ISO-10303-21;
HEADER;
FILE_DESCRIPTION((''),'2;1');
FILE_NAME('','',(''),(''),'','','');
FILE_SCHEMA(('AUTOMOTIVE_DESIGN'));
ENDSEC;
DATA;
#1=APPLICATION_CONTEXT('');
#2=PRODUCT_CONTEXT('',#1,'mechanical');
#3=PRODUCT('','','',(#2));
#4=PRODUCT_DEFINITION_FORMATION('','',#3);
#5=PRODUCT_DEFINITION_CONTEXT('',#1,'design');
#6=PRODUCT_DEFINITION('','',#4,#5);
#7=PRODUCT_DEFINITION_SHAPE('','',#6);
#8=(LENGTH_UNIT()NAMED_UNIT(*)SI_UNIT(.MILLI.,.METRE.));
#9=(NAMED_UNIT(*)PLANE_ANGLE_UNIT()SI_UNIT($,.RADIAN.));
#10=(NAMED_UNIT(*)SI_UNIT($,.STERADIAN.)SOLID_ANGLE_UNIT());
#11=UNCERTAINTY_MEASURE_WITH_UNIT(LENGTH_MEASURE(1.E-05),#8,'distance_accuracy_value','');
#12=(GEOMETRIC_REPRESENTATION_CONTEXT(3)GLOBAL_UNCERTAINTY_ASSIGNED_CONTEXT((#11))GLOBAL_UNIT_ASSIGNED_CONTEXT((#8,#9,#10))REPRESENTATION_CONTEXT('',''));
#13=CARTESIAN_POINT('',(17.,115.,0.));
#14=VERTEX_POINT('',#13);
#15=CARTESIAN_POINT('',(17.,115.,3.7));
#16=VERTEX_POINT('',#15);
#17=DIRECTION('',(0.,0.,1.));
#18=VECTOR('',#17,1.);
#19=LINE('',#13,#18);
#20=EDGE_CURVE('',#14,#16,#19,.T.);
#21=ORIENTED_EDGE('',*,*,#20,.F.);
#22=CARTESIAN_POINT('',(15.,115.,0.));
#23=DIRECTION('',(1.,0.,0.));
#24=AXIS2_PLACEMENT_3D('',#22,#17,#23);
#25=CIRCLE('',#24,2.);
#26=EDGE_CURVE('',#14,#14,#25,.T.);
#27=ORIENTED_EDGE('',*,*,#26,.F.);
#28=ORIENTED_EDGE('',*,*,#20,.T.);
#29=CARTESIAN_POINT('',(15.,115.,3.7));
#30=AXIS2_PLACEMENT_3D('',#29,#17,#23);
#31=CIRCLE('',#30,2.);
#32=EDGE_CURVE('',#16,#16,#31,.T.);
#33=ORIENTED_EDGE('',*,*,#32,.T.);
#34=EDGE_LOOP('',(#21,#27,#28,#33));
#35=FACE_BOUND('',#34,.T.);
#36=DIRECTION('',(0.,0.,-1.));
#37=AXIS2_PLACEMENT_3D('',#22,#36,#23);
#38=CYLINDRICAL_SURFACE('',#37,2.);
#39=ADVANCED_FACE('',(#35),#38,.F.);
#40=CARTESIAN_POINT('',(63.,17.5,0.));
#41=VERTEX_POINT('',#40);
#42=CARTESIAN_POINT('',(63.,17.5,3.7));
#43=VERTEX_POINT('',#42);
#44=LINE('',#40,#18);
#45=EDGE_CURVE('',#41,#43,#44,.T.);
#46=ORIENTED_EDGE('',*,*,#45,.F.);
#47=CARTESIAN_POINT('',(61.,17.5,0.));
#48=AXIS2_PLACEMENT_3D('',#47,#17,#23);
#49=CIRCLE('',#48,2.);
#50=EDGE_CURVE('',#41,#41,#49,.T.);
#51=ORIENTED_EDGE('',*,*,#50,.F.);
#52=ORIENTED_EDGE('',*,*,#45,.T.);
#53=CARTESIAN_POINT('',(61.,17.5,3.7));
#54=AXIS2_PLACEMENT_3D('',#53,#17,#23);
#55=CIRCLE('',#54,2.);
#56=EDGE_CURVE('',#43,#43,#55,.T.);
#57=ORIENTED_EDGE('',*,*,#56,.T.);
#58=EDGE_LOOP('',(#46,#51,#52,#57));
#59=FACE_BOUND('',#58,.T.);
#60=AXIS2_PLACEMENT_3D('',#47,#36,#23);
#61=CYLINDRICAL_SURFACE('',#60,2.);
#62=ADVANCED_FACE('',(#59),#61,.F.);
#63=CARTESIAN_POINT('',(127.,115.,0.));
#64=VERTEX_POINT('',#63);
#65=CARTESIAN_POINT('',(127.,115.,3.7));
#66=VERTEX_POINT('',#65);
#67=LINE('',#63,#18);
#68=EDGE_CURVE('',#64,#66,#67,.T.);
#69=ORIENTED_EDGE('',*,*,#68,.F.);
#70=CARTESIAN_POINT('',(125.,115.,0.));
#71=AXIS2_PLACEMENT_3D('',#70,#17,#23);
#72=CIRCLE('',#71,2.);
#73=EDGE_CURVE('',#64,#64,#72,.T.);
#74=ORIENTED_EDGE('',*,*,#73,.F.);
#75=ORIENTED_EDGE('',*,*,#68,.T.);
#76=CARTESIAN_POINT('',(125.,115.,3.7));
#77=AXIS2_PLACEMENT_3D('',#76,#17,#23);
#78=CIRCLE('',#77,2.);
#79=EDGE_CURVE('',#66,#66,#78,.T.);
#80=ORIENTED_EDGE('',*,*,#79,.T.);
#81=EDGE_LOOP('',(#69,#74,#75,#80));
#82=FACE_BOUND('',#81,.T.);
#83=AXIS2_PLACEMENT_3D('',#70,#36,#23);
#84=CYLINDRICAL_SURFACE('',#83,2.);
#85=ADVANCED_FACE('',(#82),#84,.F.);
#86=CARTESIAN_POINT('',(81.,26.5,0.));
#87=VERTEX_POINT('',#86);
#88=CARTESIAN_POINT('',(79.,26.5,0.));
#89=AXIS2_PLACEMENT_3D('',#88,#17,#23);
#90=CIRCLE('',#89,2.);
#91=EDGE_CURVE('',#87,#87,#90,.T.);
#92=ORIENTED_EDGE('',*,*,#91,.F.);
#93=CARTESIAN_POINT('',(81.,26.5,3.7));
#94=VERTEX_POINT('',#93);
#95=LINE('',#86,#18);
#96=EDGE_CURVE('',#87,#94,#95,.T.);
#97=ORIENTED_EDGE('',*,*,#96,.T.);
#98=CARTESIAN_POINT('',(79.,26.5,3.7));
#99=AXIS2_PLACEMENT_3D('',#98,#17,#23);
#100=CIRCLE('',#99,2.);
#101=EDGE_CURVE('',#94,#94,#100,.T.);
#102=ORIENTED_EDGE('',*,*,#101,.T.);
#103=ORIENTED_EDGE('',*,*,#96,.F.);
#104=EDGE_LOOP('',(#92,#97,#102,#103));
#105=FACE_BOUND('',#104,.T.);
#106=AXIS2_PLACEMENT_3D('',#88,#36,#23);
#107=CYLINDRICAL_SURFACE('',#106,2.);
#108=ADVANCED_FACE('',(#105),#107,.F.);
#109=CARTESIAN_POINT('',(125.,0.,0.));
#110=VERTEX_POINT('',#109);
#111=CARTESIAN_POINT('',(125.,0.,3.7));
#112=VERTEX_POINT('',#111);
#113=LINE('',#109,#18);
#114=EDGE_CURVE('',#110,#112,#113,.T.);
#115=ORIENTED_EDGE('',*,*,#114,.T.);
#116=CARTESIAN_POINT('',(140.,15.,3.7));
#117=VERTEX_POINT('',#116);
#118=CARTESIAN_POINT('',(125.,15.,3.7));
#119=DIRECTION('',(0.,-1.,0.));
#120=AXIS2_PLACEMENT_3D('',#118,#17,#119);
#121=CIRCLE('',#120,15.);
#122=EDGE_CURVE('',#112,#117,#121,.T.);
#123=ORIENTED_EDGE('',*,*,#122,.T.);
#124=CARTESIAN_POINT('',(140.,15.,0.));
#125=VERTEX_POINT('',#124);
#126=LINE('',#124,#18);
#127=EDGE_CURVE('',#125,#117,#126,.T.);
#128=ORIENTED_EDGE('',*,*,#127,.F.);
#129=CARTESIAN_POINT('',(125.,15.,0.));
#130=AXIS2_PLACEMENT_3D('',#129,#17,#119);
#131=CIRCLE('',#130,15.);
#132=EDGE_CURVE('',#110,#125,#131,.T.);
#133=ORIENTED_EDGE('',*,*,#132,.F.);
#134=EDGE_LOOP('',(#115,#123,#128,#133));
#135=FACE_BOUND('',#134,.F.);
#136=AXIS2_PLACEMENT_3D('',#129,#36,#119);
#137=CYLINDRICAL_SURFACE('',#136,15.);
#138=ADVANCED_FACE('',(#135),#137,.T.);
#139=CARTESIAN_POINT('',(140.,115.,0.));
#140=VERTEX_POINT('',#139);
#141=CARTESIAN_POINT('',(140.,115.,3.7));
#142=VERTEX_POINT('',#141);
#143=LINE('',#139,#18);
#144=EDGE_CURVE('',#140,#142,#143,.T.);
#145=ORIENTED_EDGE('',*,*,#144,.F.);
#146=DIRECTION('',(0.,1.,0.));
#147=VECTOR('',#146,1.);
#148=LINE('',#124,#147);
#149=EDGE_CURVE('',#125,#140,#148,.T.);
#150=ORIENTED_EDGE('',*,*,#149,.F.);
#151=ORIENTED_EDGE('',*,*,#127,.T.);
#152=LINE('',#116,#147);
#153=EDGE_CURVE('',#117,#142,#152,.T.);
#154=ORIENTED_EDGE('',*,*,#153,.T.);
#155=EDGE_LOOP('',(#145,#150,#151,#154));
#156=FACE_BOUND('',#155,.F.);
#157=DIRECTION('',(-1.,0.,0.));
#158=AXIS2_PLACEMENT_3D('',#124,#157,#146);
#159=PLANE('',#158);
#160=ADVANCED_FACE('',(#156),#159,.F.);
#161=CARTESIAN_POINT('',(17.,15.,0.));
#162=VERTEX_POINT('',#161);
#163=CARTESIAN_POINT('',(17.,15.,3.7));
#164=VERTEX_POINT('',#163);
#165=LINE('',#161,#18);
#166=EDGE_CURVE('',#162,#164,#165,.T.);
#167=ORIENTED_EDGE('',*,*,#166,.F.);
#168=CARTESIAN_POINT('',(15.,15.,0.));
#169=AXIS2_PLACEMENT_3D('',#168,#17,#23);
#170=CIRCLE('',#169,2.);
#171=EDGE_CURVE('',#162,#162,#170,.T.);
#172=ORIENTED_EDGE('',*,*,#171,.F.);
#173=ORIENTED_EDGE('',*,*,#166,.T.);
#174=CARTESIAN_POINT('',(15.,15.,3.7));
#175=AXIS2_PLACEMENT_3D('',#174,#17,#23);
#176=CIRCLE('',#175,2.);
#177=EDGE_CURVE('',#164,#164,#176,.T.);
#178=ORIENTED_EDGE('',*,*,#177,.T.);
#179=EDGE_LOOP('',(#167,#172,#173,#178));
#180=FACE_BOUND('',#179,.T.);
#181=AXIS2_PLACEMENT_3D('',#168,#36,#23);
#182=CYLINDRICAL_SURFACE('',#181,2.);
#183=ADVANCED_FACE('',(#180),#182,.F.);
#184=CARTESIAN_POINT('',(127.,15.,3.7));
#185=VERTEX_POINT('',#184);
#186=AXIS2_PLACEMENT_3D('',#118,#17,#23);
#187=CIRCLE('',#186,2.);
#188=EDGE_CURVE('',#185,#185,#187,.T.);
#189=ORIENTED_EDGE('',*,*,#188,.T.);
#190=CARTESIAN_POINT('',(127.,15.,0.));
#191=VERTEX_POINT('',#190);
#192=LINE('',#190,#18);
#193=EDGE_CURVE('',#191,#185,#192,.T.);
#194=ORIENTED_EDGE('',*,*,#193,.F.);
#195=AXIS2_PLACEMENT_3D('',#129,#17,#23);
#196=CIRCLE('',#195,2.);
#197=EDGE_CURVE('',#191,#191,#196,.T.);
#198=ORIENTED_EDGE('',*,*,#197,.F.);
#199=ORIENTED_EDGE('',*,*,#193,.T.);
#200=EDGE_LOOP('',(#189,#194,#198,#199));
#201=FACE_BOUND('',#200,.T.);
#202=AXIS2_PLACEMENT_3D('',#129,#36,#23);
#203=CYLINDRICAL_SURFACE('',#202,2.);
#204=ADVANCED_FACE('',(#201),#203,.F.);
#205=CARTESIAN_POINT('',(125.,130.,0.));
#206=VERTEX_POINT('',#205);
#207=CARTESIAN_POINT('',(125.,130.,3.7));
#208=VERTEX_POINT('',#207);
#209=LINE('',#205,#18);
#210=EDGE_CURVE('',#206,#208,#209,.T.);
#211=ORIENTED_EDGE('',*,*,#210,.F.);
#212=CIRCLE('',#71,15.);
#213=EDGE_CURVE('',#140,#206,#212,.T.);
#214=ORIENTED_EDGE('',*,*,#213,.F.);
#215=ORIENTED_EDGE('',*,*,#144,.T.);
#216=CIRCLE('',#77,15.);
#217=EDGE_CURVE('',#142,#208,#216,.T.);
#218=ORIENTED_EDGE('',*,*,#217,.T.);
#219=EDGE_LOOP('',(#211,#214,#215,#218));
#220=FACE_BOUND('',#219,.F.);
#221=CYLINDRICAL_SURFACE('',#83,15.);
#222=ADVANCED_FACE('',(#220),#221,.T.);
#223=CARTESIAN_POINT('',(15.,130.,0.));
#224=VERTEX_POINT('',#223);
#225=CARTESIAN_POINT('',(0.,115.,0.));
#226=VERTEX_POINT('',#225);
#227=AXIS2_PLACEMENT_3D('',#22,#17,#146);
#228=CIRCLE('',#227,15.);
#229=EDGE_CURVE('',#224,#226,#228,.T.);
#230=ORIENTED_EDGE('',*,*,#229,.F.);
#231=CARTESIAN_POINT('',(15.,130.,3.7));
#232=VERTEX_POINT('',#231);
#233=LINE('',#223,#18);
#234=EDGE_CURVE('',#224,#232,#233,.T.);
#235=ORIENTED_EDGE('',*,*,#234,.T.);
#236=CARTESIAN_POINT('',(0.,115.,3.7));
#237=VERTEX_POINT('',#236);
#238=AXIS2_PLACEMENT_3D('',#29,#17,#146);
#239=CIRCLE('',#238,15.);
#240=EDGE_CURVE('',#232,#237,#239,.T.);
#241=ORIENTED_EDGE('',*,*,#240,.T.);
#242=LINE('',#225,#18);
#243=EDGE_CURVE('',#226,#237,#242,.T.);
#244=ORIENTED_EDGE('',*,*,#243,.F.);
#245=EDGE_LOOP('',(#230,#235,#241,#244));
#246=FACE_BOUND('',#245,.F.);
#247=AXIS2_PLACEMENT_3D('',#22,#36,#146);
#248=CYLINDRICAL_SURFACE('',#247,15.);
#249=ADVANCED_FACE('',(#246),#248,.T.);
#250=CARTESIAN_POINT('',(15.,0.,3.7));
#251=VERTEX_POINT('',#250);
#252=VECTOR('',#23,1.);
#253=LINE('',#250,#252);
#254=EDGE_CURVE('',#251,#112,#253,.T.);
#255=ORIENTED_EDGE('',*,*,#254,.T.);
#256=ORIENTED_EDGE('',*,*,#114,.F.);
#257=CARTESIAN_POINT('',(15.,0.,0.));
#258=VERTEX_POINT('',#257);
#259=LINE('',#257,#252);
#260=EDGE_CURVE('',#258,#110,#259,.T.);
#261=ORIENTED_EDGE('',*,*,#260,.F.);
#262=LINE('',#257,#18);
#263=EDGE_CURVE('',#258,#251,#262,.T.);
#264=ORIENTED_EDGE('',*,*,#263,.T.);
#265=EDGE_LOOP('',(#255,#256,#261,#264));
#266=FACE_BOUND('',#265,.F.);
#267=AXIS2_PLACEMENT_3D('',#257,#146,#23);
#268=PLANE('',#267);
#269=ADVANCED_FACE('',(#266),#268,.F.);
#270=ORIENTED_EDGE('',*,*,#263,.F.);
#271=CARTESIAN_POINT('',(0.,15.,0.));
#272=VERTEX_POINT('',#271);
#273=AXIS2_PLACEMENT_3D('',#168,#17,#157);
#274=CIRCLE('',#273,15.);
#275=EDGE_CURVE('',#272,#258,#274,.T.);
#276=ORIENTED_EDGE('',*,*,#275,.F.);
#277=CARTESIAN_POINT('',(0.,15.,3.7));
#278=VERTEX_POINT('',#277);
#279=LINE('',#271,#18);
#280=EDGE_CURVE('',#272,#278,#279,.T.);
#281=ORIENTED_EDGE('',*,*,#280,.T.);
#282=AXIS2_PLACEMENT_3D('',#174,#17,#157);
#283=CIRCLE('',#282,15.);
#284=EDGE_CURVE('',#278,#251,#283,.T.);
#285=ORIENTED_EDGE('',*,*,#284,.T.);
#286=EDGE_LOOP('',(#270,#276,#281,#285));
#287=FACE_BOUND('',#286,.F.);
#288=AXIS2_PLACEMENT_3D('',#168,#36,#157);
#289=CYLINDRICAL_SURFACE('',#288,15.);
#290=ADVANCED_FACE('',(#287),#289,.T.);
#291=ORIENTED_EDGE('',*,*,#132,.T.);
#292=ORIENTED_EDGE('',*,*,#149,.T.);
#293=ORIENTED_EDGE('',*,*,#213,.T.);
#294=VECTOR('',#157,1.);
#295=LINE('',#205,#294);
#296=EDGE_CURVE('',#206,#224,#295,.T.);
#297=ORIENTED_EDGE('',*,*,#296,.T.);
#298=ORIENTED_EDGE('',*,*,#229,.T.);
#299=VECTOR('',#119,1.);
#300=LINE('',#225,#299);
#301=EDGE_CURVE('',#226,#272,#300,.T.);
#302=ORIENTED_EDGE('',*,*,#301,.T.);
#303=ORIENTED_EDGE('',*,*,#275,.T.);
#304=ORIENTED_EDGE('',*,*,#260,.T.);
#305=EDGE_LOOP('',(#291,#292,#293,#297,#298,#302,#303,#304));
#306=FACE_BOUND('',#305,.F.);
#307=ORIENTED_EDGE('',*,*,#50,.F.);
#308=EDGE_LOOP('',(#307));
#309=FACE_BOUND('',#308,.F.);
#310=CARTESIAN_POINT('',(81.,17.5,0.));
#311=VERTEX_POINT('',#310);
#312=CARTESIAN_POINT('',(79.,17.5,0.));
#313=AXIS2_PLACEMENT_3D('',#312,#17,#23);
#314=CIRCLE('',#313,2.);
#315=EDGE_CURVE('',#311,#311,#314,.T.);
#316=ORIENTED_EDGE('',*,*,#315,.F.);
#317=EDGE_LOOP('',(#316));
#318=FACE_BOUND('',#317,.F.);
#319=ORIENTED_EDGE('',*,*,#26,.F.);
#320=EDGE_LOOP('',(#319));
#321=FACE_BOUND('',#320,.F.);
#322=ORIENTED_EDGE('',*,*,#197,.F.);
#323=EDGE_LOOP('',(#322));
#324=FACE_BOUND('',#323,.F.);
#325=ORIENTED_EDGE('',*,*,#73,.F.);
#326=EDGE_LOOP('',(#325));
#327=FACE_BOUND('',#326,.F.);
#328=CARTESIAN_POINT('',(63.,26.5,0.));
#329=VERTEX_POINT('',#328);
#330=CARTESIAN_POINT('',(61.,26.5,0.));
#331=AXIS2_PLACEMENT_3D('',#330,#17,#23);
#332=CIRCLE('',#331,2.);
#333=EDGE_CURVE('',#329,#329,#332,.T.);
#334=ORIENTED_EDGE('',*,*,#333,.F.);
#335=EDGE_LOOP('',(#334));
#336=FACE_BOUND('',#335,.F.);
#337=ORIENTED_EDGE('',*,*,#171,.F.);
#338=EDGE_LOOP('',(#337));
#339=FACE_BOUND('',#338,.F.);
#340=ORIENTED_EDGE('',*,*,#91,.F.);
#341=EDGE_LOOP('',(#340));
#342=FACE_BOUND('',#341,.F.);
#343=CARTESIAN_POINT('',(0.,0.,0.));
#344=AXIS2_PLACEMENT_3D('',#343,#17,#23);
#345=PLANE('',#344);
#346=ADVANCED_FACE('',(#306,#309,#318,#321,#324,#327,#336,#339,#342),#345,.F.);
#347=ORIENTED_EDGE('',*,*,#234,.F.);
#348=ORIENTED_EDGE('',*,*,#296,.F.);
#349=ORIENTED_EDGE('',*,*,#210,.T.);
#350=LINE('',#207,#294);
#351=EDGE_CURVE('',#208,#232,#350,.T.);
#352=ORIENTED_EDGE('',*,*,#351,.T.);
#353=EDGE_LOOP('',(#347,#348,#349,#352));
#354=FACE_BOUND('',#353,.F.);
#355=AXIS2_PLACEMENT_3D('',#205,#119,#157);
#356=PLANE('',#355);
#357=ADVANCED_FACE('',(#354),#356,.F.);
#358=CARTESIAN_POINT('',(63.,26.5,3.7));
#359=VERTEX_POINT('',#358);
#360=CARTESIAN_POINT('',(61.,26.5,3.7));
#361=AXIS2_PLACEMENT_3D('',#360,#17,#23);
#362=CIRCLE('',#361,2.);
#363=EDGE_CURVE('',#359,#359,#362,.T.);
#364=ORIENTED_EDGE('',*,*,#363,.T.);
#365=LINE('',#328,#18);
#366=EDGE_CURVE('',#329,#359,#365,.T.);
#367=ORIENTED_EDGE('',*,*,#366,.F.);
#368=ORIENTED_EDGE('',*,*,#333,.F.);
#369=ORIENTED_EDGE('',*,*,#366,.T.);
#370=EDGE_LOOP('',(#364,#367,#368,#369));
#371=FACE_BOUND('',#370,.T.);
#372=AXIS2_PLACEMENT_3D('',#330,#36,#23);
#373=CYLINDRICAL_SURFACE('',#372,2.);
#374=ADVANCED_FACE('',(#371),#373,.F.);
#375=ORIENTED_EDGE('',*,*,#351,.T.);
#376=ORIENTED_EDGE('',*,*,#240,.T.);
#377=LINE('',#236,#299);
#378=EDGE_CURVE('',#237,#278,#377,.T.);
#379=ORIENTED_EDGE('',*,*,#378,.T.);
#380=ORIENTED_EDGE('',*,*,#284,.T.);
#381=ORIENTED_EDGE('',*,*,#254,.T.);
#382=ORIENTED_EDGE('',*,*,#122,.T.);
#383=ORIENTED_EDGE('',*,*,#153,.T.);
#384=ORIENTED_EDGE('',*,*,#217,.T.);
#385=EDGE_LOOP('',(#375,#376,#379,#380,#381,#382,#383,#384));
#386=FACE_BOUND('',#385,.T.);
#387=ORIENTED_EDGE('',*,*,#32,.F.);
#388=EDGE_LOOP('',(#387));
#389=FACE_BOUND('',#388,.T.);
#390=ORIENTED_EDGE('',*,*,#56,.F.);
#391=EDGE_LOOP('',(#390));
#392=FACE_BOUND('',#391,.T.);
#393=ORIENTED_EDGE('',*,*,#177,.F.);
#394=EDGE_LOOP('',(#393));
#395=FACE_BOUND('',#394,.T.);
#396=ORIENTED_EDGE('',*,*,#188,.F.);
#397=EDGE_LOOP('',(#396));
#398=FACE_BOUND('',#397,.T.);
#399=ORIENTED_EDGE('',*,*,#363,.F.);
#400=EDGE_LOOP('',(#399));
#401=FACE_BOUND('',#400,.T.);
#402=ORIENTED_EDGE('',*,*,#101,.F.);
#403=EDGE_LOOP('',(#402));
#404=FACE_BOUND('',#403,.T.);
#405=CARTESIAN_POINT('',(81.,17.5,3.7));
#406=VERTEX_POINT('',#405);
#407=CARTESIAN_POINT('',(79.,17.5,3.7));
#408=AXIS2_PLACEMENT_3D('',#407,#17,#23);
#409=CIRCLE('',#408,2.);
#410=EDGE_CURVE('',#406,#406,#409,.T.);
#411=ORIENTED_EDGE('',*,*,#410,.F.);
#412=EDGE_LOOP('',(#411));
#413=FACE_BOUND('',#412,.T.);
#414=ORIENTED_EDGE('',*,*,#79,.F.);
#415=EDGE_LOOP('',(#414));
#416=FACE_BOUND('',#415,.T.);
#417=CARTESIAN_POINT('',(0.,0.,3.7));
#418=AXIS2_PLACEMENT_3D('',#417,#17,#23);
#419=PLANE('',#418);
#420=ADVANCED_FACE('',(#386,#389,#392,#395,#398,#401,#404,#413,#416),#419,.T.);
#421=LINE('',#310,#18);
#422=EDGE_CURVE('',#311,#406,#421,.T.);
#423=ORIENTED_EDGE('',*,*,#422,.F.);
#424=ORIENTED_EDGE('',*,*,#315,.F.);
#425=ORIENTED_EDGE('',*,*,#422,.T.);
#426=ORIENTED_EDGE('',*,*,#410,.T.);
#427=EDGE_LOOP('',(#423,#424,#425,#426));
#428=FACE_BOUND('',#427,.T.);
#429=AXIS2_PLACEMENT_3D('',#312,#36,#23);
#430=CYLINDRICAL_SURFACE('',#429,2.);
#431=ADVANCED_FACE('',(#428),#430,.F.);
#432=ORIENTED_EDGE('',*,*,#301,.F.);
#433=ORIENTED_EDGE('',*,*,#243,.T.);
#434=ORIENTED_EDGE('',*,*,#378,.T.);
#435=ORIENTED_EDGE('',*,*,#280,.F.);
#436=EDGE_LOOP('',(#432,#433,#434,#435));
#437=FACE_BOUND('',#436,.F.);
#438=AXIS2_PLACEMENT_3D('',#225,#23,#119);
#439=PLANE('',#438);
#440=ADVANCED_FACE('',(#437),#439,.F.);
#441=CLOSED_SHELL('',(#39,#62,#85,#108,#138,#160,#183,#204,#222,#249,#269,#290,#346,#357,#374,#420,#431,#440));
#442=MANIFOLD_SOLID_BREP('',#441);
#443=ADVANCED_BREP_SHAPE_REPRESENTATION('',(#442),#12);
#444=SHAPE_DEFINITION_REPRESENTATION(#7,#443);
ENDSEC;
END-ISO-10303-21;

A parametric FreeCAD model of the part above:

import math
import FreeCAD as App
import Part
import Sketcher
from FreeCAD import Vector

doc = App.newDocument("Part")
body = doc.addObject("PartDesign::Body", "Body")

sketch1 = body.newObject("Sketcher::SketchObject", "Sketch")
sketch1.AttachmentSupport = (doc.getObject("XY_Plane"), [""])
sketch1.MapMode = "FlatFace"
sketch1.addGeometry([
    Part.ArcOfCircle(Part.Circle(Vector(15, 15, 0), Vector(0, 0, 1), 15), math.radians(180), math.radians(270)),
    Part.LineSegment(Vector(15, 0, 0), Vector(125, 0, 0)),
    Part.ArcOfCircle(Part.Circle(Vector(125, 15, 0), Vector(0, 0, 1), 15), math.radians(-90), math.radians(0)),
    Part.LineSegment(Vector(140, 15, 0), Vector(140, 115, 0)),
    Part.ArcOfCircle(Part.Circle(Vector(125, 115, 0), Vector(0, 0, 1), 15), math.radians(0), math.radians(90)),
    Part.LineSegment(Vector(125, 130, 0), Vector(15, 130, 0)),
    Part.ArcOfCircle(Part.Circle(Vector(15, 115, 0), Vector(0, 0, 1), 15), math.radians(90), math.radians(180)),
    Part.LineSegment(Vector(0, 115, 0), Vector(0, 15, 0)),
    Part.Circle(Vector(15, 15, 0), Vector(0, 0, 1), 2),
    Part.Circle(Vector(61, 17.5, 0), Vector(0, 0, 1), 2),
    Part.Circle(Vector(61, 26.5, 0), Vector(0, 0, 1), 2),
    Part.Circle(Vector(79, 17.5, 0), Vector(0, 0, 1), 2),
    Part.Circle(Vector(79, 26.5, 0), Vector(0, 0, 1), 2),
    Part.Circle(Vector(125, 15, 0), Vector(0, 0, 1), 2),
    Part.Circle(Vector(15, 115, 0), Vector(0, 0, 1), 2),
    Part.Circle(Vector(125, 115, 0), Vector(0, 0, 1), 2),
], False)
sketch1.addConstraint([
    Sketcher.Constraint("Tangent", 0, 2, 1, 1),
    Sketcher.Constraint("Tangent", 1, 2, 2, 1),
    Sketcher.Constraint("Tangent", 2, 2, 3, 1),
    Sketcher.Constraint("Tangent", 3, 2, 4, 1),
    Sketcher.Constraint("Tangent", 4, 2, 5, 1),
    Sketcher.Constraint("Tangent", 5, 2, 6, 1),
    Sketcher.Constraint("Tangent", 6, 2, 7, 1),
    Sketcher.Constraint("Tangent", 7, 2, 0, 1),
    Sketcher.Constraint("Horizontal", 1),
    Sketcher.Constraint("Vertical", 3),
    Sketcher.Constraint("Horizontal", 5),
    Sketcher.Constraint("Vertical", 7),
    Sketcher.Constraint("Coincident", 8, 3, 0, 3),
    Sketcher.Constraint("Coincident", 13, 3, 2, 3),
    Sketcher.Constraint("Coincident", 14, 3, 6, 3),
    Sketcher.Constraint("Coincident", 15, 3, 4, 3),
    Sketcher.Constraint("Equal", 0, 2),
    Sketcher.Constraint("Equal", 2, 4),
    Sketcher.Constraint("Equal", 4, 6),
    Sketcher.Constraint("Equal", 8, 9),
    Sketcher.Constraint("Equal", 9, 10),
    Sketcher.Constraint("Equal", 10, 11),
    Sketcher.Constraint("Equal", 11, 12),
    Sketcher.Constraint("Equal", 12, 13),
    Sketcher.Constraint("Equal", 13, 14),
    Sketcher.Constraint("Equal", 14, 15),
    Sketcher.Constraint("PointOnObject", 0, 2, -1),
    Sketcher.Constraint("PointOnObject", 6, 2, -2),
    Sketcher.Constraint("Horizontal", 9, 3, 11, 3),
    Sketcher.Constraint("Horizontal", 10, 3, 12, 3),
    Sketcher.Constraint("Vertical", 9, 3, 10, 3),
    Sketcher.Constraint("Vertical", 11, 3, 12, 3),
    Sketcher.Constraint("Diameter", 8, 4.0),
    Sketcher.Constraint("Radius", 0, 15.0),
    Sketcher.Constraint("DistanceX", -1, 1, 2, 2, 140.0),
    Sketcher.Constraint("DistanceY", -1, 1, 4, 2, 130.0),
    Sketcher.Constraint("DistanceY", 9, 3, 10, 3, 9.0),
    Sketcher.Constraint("DistanceX", 9, 3, 11, 3, 18.0),
    Sketcher.Constraint("DistanceY", -1, 1, 9, 3, 17.5),
    Sketcher.Constraint("DistanceX", -1, 1, 9, 3, 61.0),
])
pad1 = body.newObject("PartDesign::Pad", "Pad")
pad1.Profile = sketch1
pad1.Length = 3.7

doc.recompute()
